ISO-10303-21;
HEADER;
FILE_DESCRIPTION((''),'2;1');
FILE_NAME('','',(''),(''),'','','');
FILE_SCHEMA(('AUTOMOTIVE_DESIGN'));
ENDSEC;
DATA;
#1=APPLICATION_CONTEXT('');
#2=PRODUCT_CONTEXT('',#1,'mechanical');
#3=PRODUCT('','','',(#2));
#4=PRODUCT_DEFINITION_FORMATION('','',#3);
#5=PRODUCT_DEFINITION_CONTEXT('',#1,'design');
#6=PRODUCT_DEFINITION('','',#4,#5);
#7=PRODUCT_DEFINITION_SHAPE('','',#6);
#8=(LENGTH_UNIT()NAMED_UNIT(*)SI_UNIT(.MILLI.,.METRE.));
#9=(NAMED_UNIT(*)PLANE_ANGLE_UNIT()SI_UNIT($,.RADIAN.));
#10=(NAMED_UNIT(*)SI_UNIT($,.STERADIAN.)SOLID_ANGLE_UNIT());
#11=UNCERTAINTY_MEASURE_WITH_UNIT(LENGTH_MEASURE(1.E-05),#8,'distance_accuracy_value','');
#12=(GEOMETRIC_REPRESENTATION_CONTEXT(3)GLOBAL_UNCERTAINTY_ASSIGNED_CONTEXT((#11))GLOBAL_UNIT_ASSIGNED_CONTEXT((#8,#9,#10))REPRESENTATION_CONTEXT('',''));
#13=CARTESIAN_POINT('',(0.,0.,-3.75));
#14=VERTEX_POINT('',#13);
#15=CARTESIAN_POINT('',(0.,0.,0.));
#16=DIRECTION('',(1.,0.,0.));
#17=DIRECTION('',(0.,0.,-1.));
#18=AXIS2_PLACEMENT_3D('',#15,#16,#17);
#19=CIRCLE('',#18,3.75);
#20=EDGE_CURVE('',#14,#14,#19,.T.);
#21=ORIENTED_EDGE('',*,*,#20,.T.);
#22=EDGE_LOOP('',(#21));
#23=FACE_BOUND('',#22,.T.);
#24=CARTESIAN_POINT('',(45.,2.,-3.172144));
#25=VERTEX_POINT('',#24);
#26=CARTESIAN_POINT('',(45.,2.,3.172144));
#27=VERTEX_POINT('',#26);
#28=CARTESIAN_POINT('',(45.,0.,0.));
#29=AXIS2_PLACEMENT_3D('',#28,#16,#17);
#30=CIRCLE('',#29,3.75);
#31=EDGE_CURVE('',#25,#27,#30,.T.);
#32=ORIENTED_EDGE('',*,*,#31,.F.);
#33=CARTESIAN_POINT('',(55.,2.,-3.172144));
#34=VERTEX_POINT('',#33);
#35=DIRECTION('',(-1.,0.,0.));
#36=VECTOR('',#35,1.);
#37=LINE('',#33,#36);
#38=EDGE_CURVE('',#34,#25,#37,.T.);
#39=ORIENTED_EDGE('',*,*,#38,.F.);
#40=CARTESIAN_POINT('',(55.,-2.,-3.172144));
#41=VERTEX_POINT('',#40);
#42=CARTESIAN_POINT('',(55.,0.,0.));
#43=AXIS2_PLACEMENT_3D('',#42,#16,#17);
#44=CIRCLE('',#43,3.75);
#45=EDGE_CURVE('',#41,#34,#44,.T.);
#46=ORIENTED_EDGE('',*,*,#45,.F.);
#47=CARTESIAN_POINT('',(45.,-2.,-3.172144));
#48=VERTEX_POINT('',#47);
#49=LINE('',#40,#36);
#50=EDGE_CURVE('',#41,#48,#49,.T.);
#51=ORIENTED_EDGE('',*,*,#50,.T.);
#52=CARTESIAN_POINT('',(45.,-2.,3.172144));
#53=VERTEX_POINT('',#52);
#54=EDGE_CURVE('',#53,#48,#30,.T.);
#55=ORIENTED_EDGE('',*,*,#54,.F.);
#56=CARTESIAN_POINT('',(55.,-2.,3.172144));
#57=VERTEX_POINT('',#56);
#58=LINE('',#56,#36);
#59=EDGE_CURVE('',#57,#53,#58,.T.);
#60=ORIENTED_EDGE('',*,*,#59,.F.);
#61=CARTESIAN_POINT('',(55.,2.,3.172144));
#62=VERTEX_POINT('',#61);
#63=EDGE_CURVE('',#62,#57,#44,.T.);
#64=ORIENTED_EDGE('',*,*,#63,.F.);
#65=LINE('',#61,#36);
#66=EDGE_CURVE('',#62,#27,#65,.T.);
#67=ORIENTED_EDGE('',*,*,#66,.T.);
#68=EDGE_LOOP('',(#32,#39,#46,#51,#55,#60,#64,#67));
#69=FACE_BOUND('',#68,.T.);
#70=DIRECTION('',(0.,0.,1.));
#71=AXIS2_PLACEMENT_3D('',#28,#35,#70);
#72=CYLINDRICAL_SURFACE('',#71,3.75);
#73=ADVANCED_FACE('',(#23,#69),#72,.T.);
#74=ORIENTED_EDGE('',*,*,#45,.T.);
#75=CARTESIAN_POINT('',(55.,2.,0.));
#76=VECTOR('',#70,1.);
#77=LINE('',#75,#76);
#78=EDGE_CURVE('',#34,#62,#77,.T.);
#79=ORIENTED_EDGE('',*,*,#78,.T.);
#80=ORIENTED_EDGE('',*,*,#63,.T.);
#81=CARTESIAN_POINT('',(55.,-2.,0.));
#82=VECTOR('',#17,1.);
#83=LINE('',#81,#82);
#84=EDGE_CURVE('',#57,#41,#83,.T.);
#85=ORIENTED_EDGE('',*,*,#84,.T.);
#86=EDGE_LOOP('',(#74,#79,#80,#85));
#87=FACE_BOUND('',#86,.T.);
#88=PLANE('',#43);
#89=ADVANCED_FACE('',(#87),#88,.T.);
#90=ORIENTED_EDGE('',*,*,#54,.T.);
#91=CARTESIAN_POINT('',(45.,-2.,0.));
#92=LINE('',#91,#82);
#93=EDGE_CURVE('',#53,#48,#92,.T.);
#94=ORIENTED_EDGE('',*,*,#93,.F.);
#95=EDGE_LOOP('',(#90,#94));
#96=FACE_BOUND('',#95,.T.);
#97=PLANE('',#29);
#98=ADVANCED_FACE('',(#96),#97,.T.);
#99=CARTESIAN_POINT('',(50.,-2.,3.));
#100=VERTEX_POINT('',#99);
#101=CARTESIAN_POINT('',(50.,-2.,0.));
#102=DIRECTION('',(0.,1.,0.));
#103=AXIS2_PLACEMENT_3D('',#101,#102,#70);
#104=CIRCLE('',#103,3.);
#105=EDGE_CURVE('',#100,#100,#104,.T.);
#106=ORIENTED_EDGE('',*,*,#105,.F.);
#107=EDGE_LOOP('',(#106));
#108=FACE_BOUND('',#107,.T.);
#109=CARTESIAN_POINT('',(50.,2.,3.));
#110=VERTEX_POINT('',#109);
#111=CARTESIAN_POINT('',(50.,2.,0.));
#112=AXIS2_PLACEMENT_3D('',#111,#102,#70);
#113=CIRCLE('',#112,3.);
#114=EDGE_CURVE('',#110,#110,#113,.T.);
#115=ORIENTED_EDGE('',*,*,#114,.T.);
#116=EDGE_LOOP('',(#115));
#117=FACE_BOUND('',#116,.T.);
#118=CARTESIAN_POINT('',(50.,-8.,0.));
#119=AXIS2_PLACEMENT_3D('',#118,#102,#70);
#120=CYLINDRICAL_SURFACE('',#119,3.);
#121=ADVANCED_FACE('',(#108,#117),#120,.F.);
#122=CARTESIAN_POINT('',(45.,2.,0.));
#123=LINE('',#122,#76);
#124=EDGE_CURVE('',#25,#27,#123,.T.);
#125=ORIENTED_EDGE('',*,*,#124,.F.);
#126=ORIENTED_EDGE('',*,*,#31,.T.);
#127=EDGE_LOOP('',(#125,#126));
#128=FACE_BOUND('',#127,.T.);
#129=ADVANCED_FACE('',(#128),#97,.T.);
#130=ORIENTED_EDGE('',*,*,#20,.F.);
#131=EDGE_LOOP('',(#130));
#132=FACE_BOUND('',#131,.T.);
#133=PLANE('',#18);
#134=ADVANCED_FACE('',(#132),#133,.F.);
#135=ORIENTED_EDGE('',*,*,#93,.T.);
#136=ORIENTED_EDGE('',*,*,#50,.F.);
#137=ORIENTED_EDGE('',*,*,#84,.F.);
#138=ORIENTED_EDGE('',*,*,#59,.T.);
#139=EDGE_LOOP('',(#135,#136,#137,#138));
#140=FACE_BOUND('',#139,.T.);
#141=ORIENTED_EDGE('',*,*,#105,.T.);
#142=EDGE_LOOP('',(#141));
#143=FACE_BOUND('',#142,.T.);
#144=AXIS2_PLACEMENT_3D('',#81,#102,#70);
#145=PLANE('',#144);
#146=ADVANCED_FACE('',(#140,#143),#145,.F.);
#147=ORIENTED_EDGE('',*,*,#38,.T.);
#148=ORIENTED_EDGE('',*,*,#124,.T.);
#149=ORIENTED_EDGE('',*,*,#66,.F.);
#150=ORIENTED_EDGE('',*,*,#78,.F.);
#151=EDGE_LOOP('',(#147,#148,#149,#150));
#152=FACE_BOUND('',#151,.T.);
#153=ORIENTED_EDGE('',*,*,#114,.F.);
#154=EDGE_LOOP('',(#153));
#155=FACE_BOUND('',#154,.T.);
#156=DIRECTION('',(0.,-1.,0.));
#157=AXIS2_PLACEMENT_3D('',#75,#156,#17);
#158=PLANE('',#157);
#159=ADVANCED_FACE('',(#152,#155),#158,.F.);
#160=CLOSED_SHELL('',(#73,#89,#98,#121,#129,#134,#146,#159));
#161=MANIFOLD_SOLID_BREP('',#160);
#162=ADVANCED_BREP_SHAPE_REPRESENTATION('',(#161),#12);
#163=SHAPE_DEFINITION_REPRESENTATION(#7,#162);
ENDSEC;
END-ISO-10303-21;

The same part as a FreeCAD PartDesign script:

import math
import FreeCAD as App
import Part
import Sketcher
from FreeCAD import Vector

doc = App.newDocument("Part")
body = doc.addObject("PartDesign::Body", "Body")

# Sketch on YZ plane
sketch1 = body.newObject("Sketcher::SketchObject", "Sketch")
sketch1.AttachmentSupport = (doc.getObject("YZ_Plane"), [""])
sketch1.MapMode = "FlatFace"
sketch1.addGeometry(Part.Circle(Vector(0, 0, 0), Vector(0, 0, 1), 3.75), False)
sketch1.addConstraint(Sketcher.Constraint("Coincident", 0, 3, -1, 1))
sketch1.addConstraint(Sketcher.Constraint("Diameter", 0, 7.5))
pad1 = body.newObject("PartDesign::Pad", "Pad")
pad1.Profile = sketch1
pad1.Length = 45

# Sketch on YZ plane
sketch2 = body.newObject("Sketcher::SketchObject", "Sketch001")
sketch2.AttachmentSupport = (doc.getObject("YZ_Plane"), [""])
sketch2.MapMode = "FlatFace"
sketch2.AttachmentOffset = App.Placement(Vector(0, 0, 45), App.Rotation())
sketch2.addGeometry(Part.LineSegment(Vector(2, -3.172144, 0), Vector(2, 3.172144, 0)), False)
sketch2.addGeometry(Part.ArcOfCircle(Part.Circle(Vector(0, 0, 0), Vector(0, 0, 1), 3.75), math.radians(57.769047), math.radians(122.230953)), False)
sketch2.addGeometry(Part.LineSegment(Vector(-2, 3.172144, 0), Vector(-2, -3.172144, 0)), False)
sketch2.addGeometry(Part.ArcOfCircle(Part.Circle(Vector(0, 0, 0), Vector(0, 0, 1), 3.75), math.radians(-122.230953), math.radians(-90)), False)
sketch2.addGeometry(Part.ArcOfCircle(Part.Circle(Vector(0, 0, 0), Vector(0, 0, 1), 3.75), math.radians(-90), math.radians(-57.769047)), False)
sketch2.addConstraint(Sketcher.Constraint("Coincident", 0, 2, 1, 1))
sketch2.addConstraint(Sketcher.Constraint("Coincident", 1, 2, 2, 1))
sketch2.addConstraint(Sketcher.Constraint("Coincident", 2, 2, 3, 1))
sketch2.addConstraint(Sketcher.Constraint("Tangent", 3, 2, 4, 1))
sketch2.addConstraint(Sketcher.Constraint("Coincident", 4, 2, 0, 1))
sketch2.addConstraint(Sketcher.Constraint("Vertical", 0))
sketch2.addConstraint(Sketcher.Constraint("Vertical", 2))
sketch2.addConstraint(Sketcher.Constraint("Coincident", 1, 3, -1, 1))
sketch2.addConstraint(Sketcher.Constraint("Coincident", 3, 3, -1, 1))
sketch2.addConstraint(Sketcher.Constraint("Equal", 1, 3))
sketch2.addConstraint(Sketcher.Constraint("Equal", 3, 4))
sketch2.addConstraint(Sketcher.Constraint("PointOnObject", 3, 2, -2))
sketch2.addConstraint(Sketcher.Constraint("Horizontal", 0, 2, 1, 2))
sketch2.addConstraint(Sketcher.Constraint("Radius", 1, 3.75))
sketch2.addConstraint(Sketcher.Constraint("DistanceX", -1, 1, 0, 2, 2.0))
pad2 = body.newObject("PartDesign::Pad", "Pad001")
pad2.Profile = sketch2
pad2.Length = 10

# Sketch on XZ plane
sketch3 = body.newObject("Sketcher::SketchObject", "Sketch002")
sketch3.AttachmentSupport = (doc.getObject("XZ_Plane"), [""])
sketch3.MapMode = "FlatFace"
sketch3.AttachmentOffset = App.Placement(Vector(0, 0, -2), App.Rotation())
sketch3.addGeometry(Part.Circle(Vector(50, 0, 0), Vector(0, 0, 1), 3), False)
sketch3.addConstraint(Sketcher.Constraint("PointOnObject", 0, 3, -1))
sketch3.addConstraint(Sketcher.Constraint("Diameter", 0, 6.0))
sketch3.addConstraint(Sketcher.Constraint("DistanceX", -1, 1, 0, 3, 50.0))
pocket1 = body.newObject("PartDesign::Pocket", "Pocket")
pocket1.Profile = sketch3
pocket1.Length = 10
pocket1.Reversed = True

doc.recompute()
